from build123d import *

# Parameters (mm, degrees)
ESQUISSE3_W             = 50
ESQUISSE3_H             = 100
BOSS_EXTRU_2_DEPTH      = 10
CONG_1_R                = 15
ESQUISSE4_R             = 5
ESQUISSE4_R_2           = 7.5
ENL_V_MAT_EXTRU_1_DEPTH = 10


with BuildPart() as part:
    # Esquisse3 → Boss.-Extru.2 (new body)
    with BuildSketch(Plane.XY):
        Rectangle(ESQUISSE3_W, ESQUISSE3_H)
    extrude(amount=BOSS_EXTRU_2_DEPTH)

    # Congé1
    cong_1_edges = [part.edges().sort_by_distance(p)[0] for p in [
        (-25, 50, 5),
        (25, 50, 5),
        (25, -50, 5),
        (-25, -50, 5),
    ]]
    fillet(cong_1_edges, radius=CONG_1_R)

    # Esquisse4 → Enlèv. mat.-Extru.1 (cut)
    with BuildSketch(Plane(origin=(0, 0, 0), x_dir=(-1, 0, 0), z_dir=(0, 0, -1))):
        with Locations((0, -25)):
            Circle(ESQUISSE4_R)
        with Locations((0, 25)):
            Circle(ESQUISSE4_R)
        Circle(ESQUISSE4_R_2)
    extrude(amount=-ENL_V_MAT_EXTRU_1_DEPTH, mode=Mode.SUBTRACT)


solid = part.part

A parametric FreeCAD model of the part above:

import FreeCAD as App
import Part
import Sketcher

V = App.Vector


def edges_at(feature, points):
    """Names of the edges that pass closest to the given points."""
    edges = feature.Shape.Edges
    near = lambda p: min(range(len(edges)), key=lambda i: edges[i].distToShape(Part.Vertex(*p))[0])
    return sorted({f"Edge{near(p) + 1}" for p in points})


def add_polygon(sketch, points):
    """Adds a closed chain of lines whose ends are joined by coincident constraints."""
    first, n = sketch.GeometryCount, len(points)
    for a, b in zip(points, points[1:] + points[:1]):
        sketch.addGeometry(Part.LineSegment(App.Vector(*a, 0), App.Vector(*b, 0)), False)
    for i in range(n):
        sketch.addConstraint(Sketcher.Constraint("Coincident", first + i, 2, first + (i + 1) % n, 1))

doc = App.newDocument("Part")
body = doc.addObject("PartDesign::Body", "Body")

# Sketch on XY plane
sketch1 = body.newObject("Sketcher::SketchObject", "Sketch")
sketch1.AttachmentSupport = (doc.getObject("XY_Plane"), [""])
sketch1.MapMode = "FlatFace"
add_polygon(sketch1, [(-25, 50), (-25, -50), (25, -50), (25, 50)])  # lines 0-3
sketch1.addConstraint(Sketcher.Constraint("Vertical", 0))
sketch1.addConstraint(Sketcher.Constraint("Horizontal", 1))
sketch1.addConstraint(Sketcher.Constraint("Vertical", 2))
sketch1.addConstraint(Sketcher.Constraint("Horizontal", 3))
sketch1.addConstraint(Sketcher.Constraint("Symmetric", 0, 2, 2, 2, -1, 1))
sketch1.addConstraint(Sketcher.Constraint("DistanceX", 1, 1, 1, 2, 50.0))
sketch1.addConstraint(Sketcher.Constraint("DistanceY", 0, 2, 0, 1, 100.0))
pad1 = body.newObject("PartDesign::Pad", "Pad")
pad1.Profile = sketch1
pad1.Length = 10
doc.recompute()

fillet = body.newObject("PartDesign::Fillet", "Fillet")
fillet.Base = (pad1, edges_at(pad1, [
    (-25, 50, 5),
    (25, 50, 5),
    (25, -50, 5),
    (-25, -50, 5),
]))
fillet.Radius = 15

# Sketch on XY plane
sketch2 = body.newObject("Sketcher::SketchObject", "Sketch001")
sketch2.AttachmentSupport = (doc.getObject("XY_Plane"), [""])
sketch2.MapMode = "FlatFace"
sketch2.addGeometry(Part.Circle(V(0, -25, 0), V(0, 0, 1), 5), False)
sketch2.addGeometry(Part.Circle(V(0, 25, 0), V(0, 0, 1), 5), False)
sketch2.addGeometry(Part.Circle(V(0, 0, 0), V(0, 0, 1), 8), False)
sketch2.addConstraint(Sketcher.Constraint("Coincident", 2, 3, -1, 1))
sketch2.addConstraint(Sketcher.Constraint("Equal", 0, 1))
sketch2.addConstraint(Sketcher.Constraint("Symmetric", 0, 3, 1, 3, -1, 1))
sketch2.addConstraint(Sketcher.Constraint("PointOnObject", 0, 3, -2))
sketch2.addConstraint(Sketcher.Constraint("Diameter", 0, 10.0))
sketch2.addConstraint(Sketcher.Constraint("Diameter", 2, 15.0))
sketch2.addConstraint(Sketcher.Constraint("DistanceY", 0, 3, -1, 1, 25.0))
pocket1 = body.newObject("PartDesign::Pocket", "Pocket")
pocket1.Profile = sketch2
pocket1.Length = 10
pocket1.Reversed = True

doc.recompute()
